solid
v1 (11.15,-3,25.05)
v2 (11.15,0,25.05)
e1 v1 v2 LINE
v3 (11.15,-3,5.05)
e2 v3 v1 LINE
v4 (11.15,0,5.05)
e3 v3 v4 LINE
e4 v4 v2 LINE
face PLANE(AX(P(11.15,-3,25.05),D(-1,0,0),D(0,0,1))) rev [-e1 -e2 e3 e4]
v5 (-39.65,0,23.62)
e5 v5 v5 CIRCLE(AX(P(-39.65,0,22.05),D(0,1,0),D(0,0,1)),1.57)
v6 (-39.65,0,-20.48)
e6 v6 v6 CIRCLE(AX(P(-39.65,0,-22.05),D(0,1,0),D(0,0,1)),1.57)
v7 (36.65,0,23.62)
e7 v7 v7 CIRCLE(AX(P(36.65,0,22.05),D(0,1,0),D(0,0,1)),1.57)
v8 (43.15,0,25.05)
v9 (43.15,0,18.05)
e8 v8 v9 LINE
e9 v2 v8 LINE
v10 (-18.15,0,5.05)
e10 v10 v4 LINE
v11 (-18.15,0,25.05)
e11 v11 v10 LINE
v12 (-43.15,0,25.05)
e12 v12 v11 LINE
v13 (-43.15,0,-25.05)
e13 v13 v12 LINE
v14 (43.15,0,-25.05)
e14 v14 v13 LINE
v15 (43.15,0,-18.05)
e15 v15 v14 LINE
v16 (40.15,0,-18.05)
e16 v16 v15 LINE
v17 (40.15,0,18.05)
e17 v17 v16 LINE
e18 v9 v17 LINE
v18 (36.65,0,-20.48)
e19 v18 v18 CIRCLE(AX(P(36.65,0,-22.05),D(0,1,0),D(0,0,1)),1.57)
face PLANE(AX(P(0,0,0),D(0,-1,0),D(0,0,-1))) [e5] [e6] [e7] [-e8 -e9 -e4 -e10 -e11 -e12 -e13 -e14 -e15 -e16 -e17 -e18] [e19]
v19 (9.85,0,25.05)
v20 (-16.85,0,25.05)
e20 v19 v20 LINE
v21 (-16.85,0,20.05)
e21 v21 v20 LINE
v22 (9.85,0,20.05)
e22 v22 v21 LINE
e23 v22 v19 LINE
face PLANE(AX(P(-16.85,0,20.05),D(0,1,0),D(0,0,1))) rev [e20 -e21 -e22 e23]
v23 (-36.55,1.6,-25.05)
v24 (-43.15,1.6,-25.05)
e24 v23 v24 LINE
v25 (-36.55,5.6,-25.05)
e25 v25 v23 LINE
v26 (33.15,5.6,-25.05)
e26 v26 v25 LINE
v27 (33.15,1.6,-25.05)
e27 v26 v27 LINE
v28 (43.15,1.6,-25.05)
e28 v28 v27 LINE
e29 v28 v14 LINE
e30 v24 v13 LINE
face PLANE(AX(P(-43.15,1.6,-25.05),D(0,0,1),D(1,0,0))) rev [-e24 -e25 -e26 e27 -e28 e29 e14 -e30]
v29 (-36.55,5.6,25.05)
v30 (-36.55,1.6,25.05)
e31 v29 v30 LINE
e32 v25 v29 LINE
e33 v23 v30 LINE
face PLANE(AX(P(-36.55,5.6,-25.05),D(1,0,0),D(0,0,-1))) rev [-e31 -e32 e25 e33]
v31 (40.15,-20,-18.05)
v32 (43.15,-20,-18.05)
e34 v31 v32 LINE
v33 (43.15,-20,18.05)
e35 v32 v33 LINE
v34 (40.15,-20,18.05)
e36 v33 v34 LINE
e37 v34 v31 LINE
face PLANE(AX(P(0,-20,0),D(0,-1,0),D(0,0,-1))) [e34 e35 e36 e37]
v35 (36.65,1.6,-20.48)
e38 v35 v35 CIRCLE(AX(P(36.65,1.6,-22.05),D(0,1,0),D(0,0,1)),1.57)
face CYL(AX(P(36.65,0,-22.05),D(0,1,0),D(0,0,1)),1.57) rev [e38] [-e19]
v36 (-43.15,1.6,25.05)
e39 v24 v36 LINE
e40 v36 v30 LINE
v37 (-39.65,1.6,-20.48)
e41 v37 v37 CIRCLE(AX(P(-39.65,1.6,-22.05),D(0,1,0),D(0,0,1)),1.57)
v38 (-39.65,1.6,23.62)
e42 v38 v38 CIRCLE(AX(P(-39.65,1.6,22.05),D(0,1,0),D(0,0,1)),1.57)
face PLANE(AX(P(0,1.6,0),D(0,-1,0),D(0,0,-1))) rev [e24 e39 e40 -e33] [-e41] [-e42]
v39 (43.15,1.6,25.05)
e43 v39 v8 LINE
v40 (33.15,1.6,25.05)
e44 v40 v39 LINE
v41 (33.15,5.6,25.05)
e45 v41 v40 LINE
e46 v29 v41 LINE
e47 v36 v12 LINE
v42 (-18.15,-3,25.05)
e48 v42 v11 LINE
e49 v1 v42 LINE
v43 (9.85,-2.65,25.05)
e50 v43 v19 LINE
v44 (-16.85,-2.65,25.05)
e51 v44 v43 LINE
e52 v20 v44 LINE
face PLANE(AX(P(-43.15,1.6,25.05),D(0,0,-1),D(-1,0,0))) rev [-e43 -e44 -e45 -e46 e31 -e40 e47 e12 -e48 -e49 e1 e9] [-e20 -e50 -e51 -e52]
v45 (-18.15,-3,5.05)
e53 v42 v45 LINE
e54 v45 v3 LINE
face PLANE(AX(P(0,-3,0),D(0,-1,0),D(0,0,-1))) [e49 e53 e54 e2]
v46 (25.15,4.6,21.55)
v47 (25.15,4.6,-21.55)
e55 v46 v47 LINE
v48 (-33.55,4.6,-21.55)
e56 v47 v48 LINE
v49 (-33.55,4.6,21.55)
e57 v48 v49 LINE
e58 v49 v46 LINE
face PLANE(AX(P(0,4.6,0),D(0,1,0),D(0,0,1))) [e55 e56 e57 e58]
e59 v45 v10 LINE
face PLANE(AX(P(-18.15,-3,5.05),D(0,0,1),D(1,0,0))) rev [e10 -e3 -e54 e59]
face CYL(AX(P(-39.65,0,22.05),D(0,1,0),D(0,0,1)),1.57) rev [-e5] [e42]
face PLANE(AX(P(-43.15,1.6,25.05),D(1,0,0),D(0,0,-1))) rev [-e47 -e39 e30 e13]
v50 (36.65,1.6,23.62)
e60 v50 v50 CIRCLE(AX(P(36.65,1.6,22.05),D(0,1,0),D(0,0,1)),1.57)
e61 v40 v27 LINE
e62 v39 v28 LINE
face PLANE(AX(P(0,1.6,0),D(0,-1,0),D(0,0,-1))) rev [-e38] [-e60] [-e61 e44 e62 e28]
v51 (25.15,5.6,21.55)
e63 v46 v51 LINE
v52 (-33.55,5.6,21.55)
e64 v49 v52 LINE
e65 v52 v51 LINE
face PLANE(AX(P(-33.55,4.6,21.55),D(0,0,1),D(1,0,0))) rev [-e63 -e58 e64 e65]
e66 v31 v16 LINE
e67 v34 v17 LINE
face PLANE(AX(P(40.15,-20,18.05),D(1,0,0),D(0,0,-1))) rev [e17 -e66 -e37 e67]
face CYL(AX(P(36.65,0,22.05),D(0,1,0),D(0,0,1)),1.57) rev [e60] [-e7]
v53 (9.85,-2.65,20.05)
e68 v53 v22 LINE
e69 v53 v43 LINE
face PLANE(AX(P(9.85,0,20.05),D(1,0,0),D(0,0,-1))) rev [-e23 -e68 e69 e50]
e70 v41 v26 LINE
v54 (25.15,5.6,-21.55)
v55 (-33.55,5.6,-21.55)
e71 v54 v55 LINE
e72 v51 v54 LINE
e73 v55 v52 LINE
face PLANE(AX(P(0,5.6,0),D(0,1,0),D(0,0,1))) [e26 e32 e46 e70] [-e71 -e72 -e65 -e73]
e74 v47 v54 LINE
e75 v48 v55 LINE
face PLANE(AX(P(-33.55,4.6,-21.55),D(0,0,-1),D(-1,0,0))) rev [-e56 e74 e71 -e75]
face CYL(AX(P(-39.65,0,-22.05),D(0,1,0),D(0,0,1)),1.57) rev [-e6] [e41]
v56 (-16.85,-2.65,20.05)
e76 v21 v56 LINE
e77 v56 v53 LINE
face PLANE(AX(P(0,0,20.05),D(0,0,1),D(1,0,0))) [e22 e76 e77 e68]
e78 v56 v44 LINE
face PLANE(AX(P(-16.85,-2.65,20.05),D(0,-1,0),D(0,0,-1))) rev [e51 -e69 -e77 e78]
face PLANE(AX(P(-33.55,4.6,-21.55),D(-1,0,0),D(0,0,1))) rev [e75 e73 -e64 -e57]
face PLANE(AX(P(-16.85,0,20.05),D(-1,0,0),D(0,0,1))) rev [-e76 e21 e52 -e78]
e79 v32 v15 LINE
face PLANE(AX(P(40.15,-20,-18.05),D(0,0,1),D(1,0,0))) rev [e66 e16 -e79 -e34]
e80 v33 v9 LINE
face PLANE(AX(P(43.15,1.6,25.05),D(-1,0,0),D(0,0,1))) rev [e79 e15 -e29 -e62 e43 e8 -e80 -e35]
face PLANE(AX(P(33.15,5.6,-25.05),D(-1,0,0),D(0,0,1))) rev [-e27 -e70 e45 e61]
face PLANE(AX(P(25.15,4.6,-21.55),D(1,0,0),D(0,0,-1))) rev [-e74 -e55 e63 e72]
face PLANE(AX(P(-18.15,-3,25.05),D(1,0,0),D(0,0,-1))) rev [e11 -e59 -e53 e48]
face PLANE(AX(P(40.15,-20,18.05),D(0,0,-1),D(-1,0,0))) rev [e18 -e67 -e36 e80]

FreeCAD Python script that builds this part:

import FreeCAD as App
import Part
import Sketcher


def add_polygon(sketch, points):
    """Adds a closed chain of lines whose ends are joined by coincident constraints."""
    first, n = sketch.GeometryCount, len(points)
    for a, b in zip(points, points[1:] + points[:1]):
        sketch.addGeometry(Part.LineSegment(App.Vector(*a, 0), App.Vector(*b, 0)), False)
    for i in range(n):
        sketch.addConstraint(Sketcher.Constraint("Coincident", first + i, 2, first + (i + 1) % n, 1))

doc = App.newDocument("Part")
params = doc.addObject("Spreadsheet::Sheet", "Params")
for row, (alias, value) in enumerate([
    ("sketch1_width", "86.3 mm"),
    ("sketch1_height", "50.1 mm"),
    ("pad1_length", "1.6 mm"),
    ("sketch2_diameter", "3.14 mm"),
    ("sketch3_width", "69.7 mm"),
    ("sketch3_height", "50.1 mm"),
    ("pad2_length", "4 mm"),
    ("sketch4_width", "3 mm"),
    ("sketch4_height", "36.1 mm"),
    ("pad3_length", "20 mm"),
    ("sketch5_height", "20 mm"),
    ("sketch5_width", "29.3 mm"),
    ("pad4_length", "3 mm"),
    ("sketch6_width", "26.7 mm"),
    ("sketch6_height", "2.65 mm"),
    ("pocket2_length", "5 mm"),
    ("sketch7_width", "58.7 mm"),
    ("sketch7_height", "43.1 mm"),
    ("pocket3_length", "1 mm"),
], start=1):
    params.set(f"A{row}", alias)
    params.set(f"B{row}", "=" + value)
    params.setAlias(f"B{row}", alias)

body = doc.addObject("PartDesign::Body", "Body")

# Sketch on XZ plane
sketch1 = doc.addObject("Sketcher::SketchObject", "Sketch")
body.addObject(sketch1)
sketch1.AttachmentSupport = (doc.XZ_Plane, [""])
sketch1.MapMode = "FlatFace"
add_polygon(sketch1, [(-43, -25), (-43, 25), (43, 25), (43, -25)])  # lines 0-3
sketch1.addConstraint([
    Sketcher.Constraint("Vertical", 0),
    Sketcher.Constraint("Horizontal", 1),
    Sketcher.Constraint("Vertical", 2),
    Sketcher.Constraint("Horizontal", 3),
    Sketcher.Constraint("Symmetric", 0, 2, 2, 2, -1, 1),
    Sketcher.Constraint("DistanceX", 1, 1, 1, 2, 86.3),
    Sketcher.Constraint("DistanceY", 0, 1, 0, 2, 50.1),
])
sketch1.setExpression("Constraints[9]", "Params.sketch1_width")
sketch1.setExpression("Constraints[10]", "Params.sketch1_height")
pad1 = doc.addObject("PartDesign::Pad", "Pad")
body.addObject(pad1)
pad1.Profile = sketch1
pad1.setExpression("Length", "Params.pad1_length")
pad1.Reversed = True

# Sketch on XZ plane
sketch2 = doc.addObject("Sketcher::SketchObject", "Sketch001")
body.addObject(sketch2)
sketch2.AttachmentSupport = (doc.XZ_Plane, [""])
sketch2.MapMode = "FlatFace"
sketch2.AttachmentOffset = App.Placement(App.Vector(0, 0, -1.6), App.Rotation())
sketch2.addGeometry([
    Part.Circle(App.Vector(-39.6, -22.1, 0), App.Vector(0, 0, 1), 1.6),
    Part.Circle(App.Vector(-39.6, 22.1, 0), App.Vector(0, 0, 1), 1.6),
    Part.Circle(App.Vector(36.6, -22.1, 0), App.Vector(0, 0, 1), 1.6),
    Part.Circle(App.Vector(36.6, 22.1, 0), App.Vector(0, 0, 1), 1.6),
], False)
sketch2.addConstraint([
    Sketcher.Constraint("Equal", 0, 1),
    Sketcher.Constraint("Equal", 1, 2),
    Sketcher.Constraint("Equal", 2, 3),
    Sketcher.Constraint("Symmetric", 0, 3, 1, 3, -1),
    Sketcher.Constraint("Symmetric", 2, 3, 3, 3, -1),
    Sketcher.Constraint("Horizontal", 0, 3, 2, 3),
    Sketcher.Constraint("Diameter", 0, 3.14),
    Sketcher.Constraint("DistanceY", 0, 3, 1, 3, 44.1),
    Sketcher.Constraint("DistanceX", 0, 3, 2, 3, 76.3),
    Sketcher.Constraint("DistanceX", 0, 3, -1, 1, 39.65),
])
sketch2.setExpression("Constraints[6]", "Params.sketch2_diameter")
pocket1 = doc.addObject("PartDesign::Pocket", "Pocket")
body.addObject(pocket1)
pocket1.Profile = sketch2
pocket1.Type = "ThroughAll"
pocket1.Reversed = True

# Sketch on XZ plane
sketch3 = doc.addObject("Sketcher::SketchObject", "Sketch002")
body.addObject(sketch3)
sketch3.AttachmentSupport = (doc.XZ_Plane, [""])
sketch3.MapMode = "FlatFace"
sketch3.AttachmentOffset = App.Placement(App.Vector(0, 0, -1.6), App.Rotation())
add_polygon(sketch3, [(-37, -25), (-37, 25), (33, 25), (33, -25)])  # lines 0-3
sketch3.addConstraint([
    Sketcher.Constraint("Vertical", 0),
    Sketcher.Constraint("Horizontal", 1),
    Sketcher.Constraint("Vertical", 2),
    Sketcher.Constraint("Horizontal", 3),
    Sketcher.Constraint("DistanceX", 1, 1, 1, 2, 69.7),
    Sketcher.Constraint("DistanceY", 0, 1, 0, 2, 50.1),
    Sketcher.Constraint("DistanceX", 0, 2, -1, 1, 36.55),
    Sketcher.Constraint("DistanceY", -1, 1, 0, 2, 25.05),
])
sketch3.setExpression("Constraints[8]", "Params.sketch3_width")
sketch3.setExpression("Constraints[9]", "Params.sketch3_height")
pad2 = doc.addObject("PartDesign::Pad", "Pad001")
body.addObject(pad2)
pad2.Profile = sketch3
pad2.setExpression("Length", "Params.pad2_length")
pad2.Reversed = True

# Sketch on XZ plane
sketch4 = doc.addObject("Sketcher::SketchObject", "Sketch003")
body.addObject(sketch4)
sketch4.AttachmentSupport = (doc.XZ_Plane, [""])
sketch4.MapMode = "FlatFace"
add_polygon(sketch4, [(40.1, 18.1), (40.1, -18.1), (43.1, -18.1), (43.1, 18.1)])  # lines 0-3
sketch4.addConstraint([
    Sketcher.Constraint("Vertical", 0),
    Sketcher.Constraint("Horizontal", 1),
    Sketcher.Constraint("Vertical", 2),
    Sketcher.Constraint("Horizontal", 3),
    Sketcher.Constraint("DistanceX", 1, 1, 1, 2, 3.0),
    Sketcher.Constraint("DistanceY", 0, 2, 0, 1, 36.1),
    Sketcher.Constraint("DistanceX", -1, 1, 0, 2, 40.15),
    Sketcher.Constraint("DistanceY", 0, 2, -1, 1, 18.05),
])
sketch4.setExpression("Constraints[8]", "Params.sketch4_width")
sketch4.setExpression("Constraints[9]", "Params.sketch4_height")
pad3 = doc.addObject("PartDesign::Pad", "Pad002")
body.addObject(pad3)
pad3.Profile = sketch4
pad3.setExpression("Length", "Params.pad3_length")

# Sketch on XZ plane
sketch5 = doc.addObject("Sketcher::SketchObject", "Sketch004")
body.addObject(sketch5)
sketch5.AttachmentSupport = (doc.XZ_Plane, [""])
sketch5.MapMode = "FlatFace"
add_polygon(sketch5, [(-18, 25), (-18, 5), (11, 5), (11, 25)])  # lines 0-3
sketch5.addConstraint([
    Sketcher.Constraint("Vertical", 0),
    Sketcher.Constraint("Horizontal", 1),
    Sketcher.Constraint("Vertical", 2),
    Sketcher.Constraint("Horizontal", 3),
    Sketcher.Constraint("DistanceY", 0, 2, 0, 1, 20.0),
    Sketcher.Constraint("DistanceX", 1, 1, 1, 2, 29.3),
    Sketcher.Constraint("DistanceX", 0, 2, -1, 1, 18.15),
    Sketcher.Constraint("DistanceY", -1, 1, 0, 2, 5.05),
])
sketch5.setExpression("Constraints[8]", "Params.sketch5_height")
sketch5.setExpression("Constraints[9]", "Params.sketch5_width")
pad4 = doc.addObject("PartDesign::Pad", "Pad003")
body.addObject(pad4)
pad4.Profile = sketch5
pad4.setExpression("Length", "Params.pad4_length")

# Sketch on XY plane
sketch6 = doc.addObject("Sketcher::SketchObject", "Sketch005")
body.addObject(sketch6)
sketch6.AttachmentSupport = (doc.XY_Plane, [""])
sketch6.MapMode = "FlatFace"
sketch6.AttachmentOffset = App.Placement(App.Vector(0, 0, 25.05), App.Rotation())
add_polygon(sketch6, [(-16.9, 0), (-16.9, -2.6), (9.8, -2.6), (9.8, 0)])  # lines 0-3
sketch6.addConstraint([
    Sketcher.Constraint("Vertical", 0),
    Sketcher.Constraint("Horizontal", 1),
    Sketcher.Constraint("Vertical", 2),
    Sketcher.Constraint("Horizontal", 3),
    Sketcher.Constraint("PointOnObject", 2, 2, -1),
    Sketcher.Constraint("DistanceX", 1, 1, 1, 2, 26.7),
    Sketcher.Constraint("DistanceY", 0, 2, 0, 1, 2.65),
    Sketcher.Constraint("DistanceX", 0, 2, -1, 1, 16.85),
])
sketch6.setExpression("Constraints[9]", "Params.sketch6_width")
sketch6.setExpression("Constraints[10]", "Params.sketch6_height")
pocket2 = doc.addObject("PartDesign::Pocket", "Pocket001")
body.addObject(pocket2)
pocket2.Profile = sketch6
pocket2.setExpression("Length", "Params.pocket2_length")

# Sketch on XZ plane
sketch7 = doc.addObject("Sketcher::SketchObject", "Sketch006")
body.addObject(sketch7)
sketch7.AttachmentSupport = (doc.XZ_Plane, [""])
sketch7.MapMode = "FlatFace"
sketch7.AttachmentOffset = App.Placement(App.Vector(0, 0, -5.6), App.Rotation())
add_polygon(sketch7, [(-34, -22), (-34, 22), (25, 22), (25, -22)])  # lines 0-3
sketch7.addConstraint([
    Sketcher.Constraint("Vertical", 0),
    Sketcher.Constraint("Horizontal", 1),
    Sketcher.Constraint("Vertical", 2),
    Sketcher.Constraint("Horizontal", 3),
    Sketcher.Constraint("DistanceX", 1, 1, 1, 2, 58.7),
    Sketcher.Constraint("DistanceY", 0, 1, 0, 2, 43.1),
    Sketcher.Constraint("DistanceX", 0, 2, -1, 1, 33.55),
    Sketcher.Constraint("DistanceY", -1, 1, 0, 2, 21.55),
])
sketch7.setExpression("Constraints[8]", "Params.sketch7_width")
sketch7.setExpression("Constraints[9]", "Params.sketch7_height")
pocket3 = doc.addObject("PartDesign::Pocket", "Pocket002")
body.addObject(pocket3)
pocket3.Profile = sketch7
pocket3.setExpression("Length", "Params.pocket3_length")
pocket3.Reversed = True

doc.recompute()
